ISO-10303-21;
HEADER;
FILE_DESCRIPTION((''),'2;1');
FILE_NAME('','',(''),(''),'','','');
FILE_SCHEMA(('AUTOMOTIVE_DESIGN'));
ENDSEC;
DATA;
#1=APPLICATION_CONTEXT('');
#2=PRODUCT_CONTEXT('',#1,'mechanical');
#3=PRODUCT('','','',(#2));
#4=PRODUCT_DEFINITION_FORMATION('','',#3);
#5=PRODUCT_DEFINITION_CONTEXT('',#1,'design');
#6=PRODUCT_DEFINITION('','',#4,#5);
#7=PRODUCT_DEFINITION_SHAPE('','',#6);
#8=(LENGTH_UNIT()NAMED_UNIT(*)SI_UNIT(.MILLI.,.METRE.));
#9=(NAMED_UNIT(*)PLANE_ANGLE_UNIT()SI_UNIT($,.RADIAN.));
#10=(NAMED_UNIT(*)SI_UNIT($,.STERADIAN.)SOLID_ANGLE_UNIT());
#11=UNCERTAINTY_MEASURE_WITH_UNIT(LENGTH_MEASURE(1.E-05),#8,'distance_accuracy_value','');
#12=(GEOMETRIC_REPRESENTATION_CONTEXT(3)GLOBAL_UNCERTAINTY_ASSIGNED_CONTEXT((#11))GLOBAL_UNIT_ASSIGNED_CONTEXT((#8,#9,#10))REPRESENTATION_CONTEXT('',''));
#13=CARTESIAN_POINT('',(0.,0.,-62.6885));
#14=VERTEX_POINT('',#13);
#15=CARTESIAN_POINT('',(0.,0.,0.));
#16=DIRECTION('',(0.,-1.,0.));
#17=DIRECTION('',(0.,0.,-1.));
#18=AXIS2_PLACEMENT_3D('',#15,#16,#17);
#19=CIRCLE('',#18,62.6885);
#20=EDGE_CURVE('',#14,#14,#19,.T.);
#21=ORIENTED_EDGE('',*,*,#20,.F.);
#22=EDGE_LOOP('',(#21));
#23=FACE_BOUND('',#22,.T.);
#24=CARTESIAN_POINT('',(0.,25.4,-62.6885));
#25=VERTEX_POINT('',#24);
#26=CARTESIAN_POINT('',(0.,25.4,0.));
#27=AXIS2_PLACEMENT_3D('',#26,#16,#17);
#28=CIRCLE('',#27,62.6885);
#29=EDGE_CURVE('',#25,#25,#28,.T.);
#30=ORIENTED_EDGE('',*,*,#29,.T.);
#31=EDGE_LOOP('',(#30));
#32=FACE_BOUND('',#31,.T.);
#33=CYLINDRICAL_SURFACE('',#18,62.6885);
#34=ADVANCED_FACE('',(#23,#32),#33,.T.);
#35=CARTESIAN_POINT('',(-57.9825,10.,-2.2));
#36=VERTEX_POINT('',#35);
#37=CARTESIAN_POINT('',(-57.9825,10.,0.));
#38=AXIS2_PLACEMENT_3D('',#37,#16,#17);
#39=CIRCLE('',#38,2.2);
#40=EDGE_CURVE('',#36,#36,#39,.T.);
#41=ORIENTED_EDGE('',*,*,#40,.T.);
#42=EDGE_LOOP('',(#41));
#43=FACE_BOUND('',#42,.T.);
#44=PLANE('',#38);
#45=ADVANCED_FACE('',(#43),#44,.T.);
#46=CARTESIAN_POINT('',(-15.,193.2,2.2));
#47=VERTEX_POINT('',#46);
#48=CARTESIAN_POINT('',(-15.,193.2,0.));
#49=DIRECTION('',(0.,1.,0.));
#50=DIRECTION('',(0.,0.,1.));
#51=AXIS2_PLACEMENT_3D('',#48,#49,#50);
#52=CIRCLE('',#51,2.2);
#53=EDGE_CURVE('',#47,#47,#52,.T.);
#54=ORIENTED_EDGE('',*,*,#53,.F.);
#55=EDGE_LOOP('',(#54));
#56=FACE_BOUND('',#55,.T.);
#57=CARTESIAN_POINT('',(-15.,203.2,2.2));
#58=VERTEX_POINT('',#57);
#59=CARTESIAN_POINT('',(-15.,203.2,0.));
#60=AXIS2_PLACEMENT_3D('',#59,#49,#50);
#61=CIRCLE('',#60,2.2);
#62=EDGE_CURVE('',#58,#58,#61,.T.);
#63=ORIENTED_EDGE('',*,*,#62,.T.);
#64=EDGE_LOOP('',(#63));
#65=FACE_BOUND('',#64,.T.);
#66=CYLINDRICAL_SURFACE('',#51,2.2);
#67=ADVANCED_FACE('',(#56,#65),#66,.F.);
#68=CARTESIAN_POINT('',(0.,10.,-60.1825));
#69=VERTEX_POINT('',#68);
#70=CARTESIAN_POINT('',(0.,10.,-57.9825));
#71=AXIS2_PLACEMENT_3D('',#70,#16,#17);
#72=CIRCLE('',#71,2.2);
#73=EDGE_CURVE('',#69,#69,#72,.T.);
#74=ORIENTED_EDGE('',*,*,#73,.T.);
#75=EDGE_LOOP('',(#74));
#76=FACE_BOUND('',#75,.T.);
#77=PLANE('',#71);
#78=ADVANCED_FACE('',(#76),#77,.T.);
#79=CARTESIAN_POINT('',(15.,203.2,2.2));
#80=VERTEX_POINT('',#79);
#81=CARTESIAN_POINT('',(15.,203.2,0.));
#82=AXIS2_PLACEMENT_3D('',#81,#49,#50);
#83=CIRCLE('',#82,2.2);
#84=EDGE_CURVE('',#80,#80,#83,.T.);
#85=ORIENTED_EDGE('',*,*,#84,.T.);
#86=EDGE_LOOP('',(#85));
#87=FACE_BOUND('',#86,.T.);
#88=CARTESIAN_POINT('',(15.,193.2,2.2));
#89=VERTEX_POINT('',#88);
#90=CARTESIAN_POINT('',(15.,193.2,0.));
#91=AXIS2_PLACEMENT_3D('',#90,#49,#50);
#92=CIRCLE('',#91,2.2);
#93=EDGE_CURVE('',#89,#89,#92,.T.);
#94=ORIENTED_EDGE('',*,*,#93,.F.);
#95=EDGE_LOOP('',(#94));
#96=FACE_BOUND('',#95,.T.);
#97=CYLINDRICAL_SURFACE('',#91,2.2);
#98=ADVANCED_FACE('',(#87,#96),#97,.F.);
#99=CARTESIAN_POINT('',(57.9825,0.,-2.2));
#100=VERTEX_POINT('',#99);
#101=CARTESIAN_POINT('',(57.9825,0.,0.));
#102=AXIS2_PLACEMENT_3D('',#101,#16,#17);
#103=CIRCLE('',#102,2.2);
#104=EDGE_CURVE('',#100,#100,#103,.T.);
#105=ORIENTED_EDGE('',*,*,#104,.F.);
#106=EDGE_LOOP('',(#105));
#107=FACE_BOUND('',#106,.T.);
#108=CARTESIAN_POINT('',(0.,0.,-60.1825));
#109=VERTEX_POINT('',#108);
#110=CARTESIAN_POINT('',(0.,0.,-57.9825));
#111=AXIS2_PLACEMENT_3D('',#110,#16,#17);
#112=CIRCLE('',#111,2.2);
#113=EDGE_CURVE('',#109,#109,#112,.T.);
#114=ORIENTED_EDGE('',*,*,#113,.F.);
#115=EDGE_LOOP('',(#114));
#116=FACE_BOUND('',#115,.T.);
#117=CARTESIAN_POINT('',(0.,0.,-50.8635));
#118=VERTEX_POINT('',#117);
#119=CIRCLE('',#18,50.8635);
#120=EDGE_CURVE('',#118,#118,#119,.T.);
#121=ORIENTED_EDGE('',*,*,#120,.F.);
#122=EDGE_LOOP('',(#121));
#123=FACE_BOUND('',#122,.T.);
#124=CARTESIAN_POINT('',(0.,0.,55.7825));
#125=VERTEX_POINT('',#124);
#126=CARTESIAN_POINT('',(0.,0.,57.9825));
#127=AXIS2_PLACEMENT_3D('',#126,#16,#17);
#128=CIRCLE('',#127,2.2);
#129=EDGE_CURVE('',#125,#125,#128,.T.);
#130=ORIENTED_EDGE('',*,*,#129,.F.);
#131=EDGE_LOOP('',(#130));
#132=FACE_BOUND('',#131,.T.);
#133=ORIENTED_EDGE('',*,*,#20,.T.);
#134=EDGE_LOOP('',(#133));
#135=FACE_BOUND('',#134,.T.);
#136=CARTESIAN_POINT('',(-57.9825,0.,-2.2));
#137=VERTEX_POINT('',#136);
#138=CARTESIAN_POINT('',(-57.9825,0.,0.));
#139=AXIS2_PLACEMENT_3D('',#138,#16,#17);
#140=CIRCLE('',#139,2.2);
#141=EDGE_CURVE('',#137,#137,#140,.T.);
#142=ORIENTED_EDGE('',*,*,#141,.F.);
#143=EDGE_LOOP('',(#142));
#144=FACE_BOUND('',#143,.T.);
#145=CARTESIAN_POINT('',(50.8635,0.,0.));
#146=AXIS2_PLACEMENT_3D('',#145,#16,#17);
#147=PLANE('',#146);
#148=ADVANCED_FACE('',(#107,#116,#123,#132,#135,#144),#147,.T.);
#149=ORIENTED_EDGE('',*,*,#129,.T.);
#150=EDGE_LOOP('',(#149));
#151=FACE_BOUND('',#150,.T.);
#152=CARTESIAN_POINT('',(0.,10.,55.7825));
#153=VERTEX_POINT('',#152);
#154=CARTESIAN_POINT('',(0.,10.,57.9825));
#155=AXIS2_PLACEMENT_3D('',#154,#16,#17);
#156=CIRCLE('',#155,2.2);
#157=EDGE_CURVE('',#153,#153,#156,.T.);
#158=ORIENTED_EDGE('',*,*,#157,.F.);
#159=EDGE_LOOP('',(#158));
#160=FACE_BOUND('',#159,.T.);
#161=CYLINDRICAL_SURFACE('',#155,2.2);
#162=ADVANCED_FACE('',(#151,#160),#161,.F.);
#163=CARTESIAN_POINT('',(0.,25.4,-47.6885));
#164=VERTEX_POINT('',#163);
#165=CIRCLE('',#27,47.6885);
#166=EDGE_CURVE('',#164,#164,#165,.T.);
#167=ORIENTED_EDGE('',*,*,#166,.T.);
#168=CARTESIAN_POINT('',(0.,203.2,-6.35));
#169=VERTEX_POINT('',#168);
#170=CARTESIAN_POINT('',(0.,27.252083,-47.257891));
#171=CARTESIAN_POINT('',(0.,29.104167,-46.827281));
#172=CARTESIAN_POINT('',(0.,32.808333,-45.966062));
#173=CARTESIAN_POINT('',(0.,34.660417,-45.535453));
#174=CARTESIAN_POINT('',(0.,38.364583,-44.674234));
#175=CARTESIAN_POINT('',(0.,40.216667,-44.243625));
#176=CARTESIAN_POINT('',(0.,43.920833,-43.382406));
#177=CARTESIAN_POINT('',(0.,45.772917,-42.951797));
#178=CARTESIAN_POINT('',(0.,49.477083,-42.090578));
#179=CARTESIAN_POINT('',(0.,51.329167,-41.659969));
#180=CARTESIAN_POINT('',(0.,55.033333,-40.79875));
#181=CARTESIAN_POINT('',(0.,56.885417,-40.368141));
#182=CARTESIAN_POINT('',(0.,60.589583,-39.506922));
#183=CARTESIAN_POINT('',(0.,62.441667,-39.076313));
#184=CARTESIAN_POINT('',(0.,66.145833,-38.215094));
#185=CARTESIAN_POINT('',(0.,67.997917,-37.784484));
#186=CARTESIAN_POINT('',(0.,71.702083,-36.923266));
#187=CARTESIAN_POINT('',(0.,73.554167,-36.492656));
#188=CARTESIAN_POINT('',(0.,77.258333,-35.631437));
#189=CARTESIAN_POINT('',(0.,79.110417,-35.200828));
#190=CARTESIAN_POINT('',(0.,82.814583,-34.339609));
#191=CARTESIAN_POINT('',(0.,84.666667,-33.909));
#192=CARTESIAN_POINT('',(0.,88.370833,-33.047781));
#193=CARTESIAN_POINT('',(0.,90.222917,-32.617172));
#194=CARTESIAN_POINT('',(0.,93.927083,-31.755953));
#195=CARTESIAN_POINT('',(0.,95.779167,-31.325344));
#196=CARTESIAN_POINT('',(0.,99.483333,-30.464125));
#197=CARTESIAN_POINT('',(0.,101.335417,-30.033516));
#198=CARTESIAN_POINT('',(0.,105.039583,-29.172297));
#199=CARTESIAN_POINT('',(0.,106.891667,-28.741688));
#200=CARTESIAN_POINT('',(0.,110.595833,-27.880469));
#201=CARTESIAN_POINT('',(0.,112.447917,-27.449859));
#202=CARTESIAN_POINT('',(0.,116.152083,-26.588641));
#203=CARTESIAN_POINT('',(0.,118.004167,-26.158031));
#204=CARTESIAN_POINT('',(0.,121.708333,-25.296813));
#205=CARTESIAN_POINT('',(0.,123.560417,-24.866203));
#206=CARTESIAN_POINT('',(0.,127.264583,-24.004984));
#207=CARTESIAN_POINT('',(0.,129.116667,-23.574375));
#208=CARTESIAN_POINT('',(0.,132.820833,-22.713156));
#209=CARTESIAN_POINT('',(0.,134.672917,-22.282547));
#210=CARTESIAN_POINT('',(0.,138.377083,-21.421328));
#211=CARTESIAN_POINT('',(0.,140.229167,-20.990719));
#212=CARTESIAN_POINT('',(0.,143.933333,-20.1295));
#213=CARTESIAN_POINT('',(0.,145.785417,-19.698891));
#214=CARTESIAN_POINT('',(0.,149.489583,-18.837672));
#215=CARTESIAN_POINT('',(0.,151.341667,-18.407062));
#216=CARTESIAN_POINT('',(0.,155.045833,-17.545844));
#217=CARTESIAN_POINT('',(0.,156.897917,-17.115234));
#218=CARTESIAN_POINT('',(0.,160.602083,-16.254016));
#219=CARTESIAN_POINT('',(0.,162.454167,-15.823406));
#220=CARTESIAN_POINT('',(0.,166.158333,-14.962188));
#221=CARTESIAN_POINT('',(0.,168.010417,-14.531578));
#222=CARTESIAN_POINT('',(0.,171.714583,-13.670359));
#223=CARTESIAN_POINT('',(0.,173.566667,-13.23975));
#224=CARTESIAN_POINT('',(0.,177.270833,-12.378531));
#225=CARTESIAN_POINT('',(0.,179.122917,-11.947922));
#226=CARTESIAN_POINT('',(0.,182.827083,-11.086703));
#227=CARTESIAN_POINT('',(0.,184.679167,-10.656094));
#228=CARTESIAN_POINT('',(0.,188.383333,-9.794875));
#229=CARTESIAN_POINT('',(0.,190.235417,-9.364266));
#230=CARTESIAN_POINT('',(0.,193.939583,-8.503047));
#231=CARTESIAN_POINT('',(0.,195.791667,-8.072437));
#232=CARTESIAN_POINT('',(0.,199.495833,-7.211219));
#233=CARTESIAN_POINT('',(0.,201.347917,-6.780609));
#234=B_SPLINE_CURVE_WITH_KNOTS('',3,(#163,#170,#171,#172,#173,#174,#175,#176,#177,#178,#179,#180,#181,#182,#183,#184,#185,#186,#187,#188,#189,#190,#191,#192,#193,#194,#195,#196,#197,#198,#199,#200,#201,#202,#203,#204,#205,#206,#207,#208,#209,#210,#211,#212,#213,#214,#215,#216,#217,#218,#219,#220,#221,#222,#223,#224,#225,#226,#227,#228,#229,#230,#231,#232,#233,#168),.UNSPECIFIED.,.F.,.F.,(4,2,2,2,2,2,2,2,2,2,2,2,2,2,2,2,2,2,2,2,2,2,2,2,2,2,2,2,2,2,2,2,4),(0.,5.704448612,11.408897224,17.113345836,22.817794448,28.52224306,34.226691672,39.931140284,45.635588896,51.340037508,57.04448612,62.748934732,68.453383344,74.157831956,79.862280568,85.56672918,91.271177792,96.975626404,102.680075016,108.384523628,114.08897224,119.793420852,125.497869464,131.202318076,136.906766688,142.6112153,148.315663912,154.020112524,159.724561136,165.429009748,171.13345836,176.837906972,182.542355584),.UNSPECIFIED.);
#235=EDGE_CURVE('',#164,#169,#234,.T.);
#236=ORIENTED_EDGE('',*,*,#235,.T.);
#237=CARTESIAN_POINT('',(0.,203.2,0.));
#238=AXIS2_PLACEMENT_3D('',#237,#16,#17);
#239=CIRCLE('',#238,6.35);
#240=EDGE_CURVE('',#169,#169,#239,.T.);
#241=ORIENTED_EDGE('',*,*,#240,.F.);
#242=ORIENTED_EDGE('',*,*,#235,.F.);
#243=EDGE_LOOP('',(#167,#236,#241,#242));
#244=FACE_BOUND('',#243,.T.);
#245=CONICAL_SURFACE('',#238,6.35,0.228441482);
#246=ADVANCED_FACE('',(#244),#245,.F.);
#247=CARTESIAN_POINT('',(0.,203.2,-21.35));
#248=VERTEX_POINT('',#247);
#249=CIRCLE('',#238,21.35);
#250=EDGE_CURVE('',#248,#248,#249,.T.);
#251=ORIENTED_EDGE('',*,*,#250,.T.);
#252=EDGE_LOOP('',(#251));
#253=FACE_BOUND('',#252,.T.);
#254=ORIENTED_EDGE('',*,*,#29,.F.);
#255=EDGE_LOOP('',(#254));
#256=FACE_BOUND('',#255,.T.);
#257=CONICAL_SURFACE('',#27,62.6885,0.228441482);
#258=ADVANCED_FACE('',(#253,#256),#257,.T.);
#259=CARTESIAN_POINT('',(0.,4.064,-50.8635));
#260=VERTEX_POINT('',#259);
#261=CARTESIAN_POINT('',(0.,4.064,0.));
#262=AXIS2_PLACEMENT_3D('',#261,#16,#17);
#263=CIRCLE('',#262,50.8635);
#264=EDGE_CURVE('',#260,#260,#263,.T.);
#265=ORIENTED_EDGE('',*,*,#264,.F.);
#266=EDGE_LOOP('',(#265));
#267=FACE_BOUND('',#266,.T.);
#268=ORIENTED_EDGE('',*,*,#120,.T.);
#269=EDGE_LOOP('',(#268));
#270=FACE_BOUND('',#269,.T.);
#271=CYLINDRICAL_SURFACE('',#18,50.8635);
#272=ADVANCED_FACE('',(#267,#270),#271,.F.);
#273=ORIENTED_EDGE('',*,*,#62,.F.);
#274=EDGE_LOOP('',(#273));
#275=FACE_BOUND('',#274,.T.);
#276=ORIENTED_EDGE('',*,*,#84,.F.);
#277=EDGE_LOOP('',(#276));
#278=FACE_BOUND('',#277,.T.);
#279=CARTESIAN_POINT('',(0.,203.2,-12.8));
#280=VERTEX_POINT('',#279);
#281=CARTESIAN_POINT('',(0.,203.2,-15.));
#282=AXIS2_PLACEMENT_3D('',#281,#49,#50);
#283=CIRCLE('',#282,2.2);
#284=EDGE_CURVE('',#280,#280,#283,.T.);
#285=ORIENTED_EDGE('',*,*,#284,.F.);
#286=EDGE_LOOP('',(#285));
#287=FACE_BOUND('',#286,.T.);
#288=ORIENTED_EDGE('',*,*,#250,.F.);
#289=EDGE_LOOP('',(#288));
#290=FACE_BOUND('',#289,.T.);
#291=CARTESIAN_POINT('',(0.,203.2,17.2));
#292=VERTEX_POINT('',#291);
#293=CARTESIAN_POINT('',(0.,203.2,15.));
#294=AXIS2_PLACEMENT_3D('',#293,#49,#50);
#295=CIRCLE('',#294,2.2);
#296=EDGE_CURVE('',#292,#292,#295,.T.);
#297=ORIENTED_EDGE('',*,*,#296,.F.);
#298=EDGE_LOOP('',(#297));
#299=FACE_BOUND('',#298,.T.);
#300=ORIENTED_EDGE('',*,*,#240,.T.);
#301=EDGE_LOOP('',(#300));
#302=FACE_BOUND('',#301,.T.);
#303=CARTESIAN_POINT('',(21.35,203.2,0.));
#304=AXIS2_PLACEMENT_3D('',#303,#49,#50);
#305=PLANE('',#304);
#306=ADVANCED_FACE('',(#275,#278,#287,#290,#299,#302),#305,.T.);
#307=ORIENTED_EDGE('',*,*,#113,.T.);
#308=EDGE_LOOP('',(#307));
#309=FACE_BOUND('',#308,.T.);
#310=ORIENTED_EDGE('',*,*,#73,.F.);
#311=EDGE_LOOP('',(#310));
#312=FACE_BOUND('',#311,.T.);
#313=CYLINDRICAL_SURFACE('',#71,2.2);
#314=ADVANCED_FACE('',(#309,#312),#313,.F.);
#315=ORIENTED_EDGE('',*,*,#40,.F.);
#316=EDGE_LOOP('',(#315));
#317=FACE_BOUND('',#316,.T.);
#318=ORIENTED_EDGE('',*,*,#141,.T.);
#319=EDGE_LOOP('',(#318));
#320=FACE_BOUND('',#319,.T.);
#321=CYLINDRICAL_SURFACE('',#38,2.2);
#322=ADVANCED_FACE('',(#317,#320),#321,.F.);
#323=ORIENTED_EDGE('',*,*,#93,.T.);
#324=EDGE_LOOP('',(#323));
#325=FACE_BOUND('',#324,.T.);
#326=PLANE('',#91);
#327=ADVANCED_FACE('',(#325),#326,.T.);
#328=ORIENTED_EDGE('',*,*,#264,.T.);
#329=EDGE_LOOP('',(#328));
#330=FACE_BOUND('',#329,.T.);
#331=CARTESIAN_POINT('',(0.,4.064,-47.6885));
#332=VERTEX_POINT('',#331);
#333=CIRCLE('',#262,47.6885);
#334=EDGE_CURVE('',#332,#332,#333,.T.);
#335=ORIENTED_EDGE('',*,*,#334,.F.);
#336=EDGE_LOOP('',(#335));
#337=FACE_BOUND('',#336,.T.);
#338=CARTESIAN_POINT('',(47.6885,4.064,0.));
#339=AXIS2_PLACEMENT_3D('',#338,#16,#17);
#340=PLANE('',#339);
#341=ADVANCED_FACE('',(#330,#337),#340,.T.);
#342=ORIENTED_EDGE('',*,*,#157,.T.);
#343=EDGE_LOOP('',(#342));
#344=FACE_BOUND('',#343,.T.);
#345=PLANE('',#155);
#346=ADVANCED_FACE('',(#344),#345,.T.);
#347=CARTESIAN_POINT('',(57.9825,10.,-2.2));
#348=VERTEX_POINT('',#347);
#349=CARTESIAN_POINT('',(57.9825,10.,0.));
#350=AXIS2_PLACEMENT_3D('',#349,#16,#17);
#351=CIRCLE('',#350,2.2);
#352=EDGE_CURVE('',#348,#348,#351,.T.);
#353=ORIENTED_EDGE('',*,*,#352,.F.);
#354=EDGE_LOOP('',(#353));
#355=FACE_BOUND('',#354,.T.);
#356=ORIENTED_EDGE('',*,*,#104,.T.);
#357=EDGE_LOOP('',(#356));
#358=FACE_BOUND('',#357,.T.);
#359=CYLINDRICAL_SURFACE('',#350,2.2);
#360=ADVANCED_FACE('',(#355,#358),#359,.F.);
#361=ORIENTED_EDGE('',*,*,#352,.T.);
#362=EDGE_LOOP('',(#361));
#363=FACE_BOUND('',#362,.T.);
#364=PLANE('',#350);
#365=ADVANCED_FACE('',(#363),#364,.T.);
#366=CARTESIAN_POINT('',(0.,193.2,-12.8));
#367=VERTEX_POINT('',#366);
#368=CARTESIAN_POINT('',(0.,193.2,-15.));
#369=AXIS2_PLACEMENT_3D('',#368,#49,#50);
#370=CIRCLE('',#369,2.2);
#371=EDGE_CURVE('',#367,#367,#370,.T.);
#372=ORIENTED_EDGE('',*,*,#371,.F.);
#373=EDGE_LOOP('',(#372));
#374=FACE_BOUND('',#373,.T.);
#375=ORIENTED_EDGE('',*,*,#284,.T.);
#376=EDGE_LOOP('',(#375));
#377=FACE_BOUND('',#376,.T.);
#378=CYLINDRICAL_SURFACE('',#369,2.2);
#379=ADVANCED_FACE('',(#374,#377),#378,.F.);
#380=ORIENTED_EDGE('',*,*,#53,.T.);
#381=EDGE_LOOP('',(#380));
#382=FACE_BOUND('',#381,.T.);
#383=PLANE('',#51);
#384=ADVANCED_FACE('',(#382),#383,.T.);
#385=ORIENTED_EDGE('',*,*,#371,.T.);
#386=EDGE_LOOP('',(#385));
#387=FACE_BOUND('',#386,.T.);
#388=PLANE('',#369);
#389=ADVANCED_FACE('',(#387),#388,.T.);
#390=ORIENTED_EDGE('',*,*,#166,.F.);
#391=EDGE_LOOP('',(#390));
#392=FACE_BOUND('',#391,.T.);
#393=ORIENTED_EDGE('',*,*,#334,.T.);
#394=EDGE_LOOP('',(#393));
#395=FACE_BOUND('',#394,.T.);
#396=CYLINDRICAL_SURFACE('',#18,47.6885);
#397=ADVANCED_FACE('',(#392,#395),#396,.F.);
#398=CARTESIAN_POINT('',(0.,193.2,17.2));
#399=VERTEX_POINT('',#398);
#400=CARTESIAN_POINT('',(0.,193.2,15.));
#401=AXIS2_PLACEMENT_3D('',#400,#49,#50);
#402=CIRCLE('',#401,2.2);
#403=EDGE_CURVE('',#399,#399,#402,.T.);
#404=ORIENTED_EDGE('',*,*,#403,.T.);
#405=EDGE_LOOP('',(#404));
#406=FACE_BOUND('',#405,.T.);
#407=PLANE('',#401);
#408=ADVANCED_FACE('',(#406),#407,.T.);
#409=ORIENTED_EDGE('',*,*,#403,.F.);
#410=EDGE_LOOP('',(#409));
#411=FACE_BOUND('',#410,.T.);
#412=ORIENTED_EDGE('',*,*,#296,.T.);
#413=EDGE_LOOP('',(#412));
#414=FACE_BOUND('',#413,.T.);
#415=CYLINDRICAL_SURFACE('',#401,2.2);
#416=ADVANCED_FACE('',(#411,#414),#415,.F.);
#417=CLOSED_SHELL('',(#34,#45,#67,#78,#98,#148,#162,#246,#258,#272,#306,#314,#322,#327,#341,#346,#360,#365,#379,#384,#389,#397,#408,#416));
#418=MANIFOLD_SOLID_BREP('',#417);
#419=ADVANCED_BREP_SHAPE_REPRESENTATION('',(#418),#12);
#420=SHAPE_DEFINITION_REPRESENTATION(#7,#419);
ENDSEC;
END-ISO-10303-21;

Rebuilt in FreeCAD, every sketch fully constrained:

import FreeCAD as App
import Part
import Sketcher
Q = App.Units.Quantity

doc = App.newDocument("Part")
body = doc.addObject("PartDesign::Body", "Body")

# Sketch on XY plane
sketch1 = body.newObject("Sketcher::SketchObject", "Sketch")
sketch1.AttachmentSupport = (doc.getObject("XY_Plane"), [""])
sketch1.MapMode = "FlatFace"
sketch1.addGeometry(Part.LineSegment(App.Vector(50.9, 0, 0), App.Vector(62.7, 0, 0)), False)
sketch1.addGeometry(Part.LineSegment(App.Vector(62.7, 0, 0), App.Vector(62.7, 25.4, 0)), False)
sketch1.addGeometry(Part.LineSegment(App.Vector(62.7, 25.4, 0), App.Vector(21.4, 203.2, 0)), False)
sketch1.addGeometry(Part.LineSegment(App.Vector(21.4, 203.2, 0), App.Vector(6.3, 203.2, 0)), False)
sketch1.addGeometry(Part.LineSegment(App.Vector(6.3, 203.2, 0), App.Vector(47.7, 25.4, 0)), False)
sketch1.addGeometry(Part.LineSegment(App.Vector(47.7, 25.4, 0), App.Vector(47.7, 4.1, 0)), False)
sketch1.addGeometry(Part.LineSegment(App.Vector(47.7, 4.1, 0), App.Vector(50.9, 4.1, 0)), False)
sketch1.addGeometry(Part.LineSegment(App.Vector(50.9, 4.1, 0), App.Vector(50.9, 0, 0)), False)
sketch1.addConstraint(Sketcher.Constraint("Coincident", 0, 2, 1, 1))
sketch1.addConstraint(Sketcher.Constraint("Coincident", 1, 2, 2, 1))
sketch1.addConstraint(Sketcher.Constraint("Coincident", 2, 2, 3, 1))
sketch1.addConstraint(Sketcher.Constraint("Coincident", 3, 2, 4, 1))
sketch1.addConstraint(Sketcher.Constraint("Coincident", 4, 2, 5, 1))
sketch1.addConstraint(Sketcher.Constraint("Coincident", 5, 2, 6, 1))
sketch1.addConstraint(Sketcher.Constraint("Coincident", 6, 2, 7, 1))
sketch1.addConstraint(Sketcher.Constraint("Coincident", 7, 2, 0, 1))
sketch1.addConstraint(Sketcher.Constraint("Horizontal", 0))
sketch1.addConstraint(Sketcher.Constraint("Vertical", 1))
sketch1.addConstraint(Sketcher.Constraint("Horizontal", 3))
sketch1.addConstraint(Sketcher.Constraint("Vertical", 5))
sketch1.addConstraint(Sketcher.Constraint("Horizontal", 6))
sketch1.addConstraint(Sketcher.Constraint("Vertical", 7))
sketch1.addConstraint(Sketcher.Constraint("PointOnObject", 0, 2, -1))
sketch1.addConstraint(Sketcher.Constraint("Parallel", 2, 4))
sketch1.addConstraint(Sketcher.Constraint("Horizontal", 1, 2, 4, 2))
sketch1.addConstraint(Sketcher.Constraint("DistanceY", 1, 1, 1, 2, Q("1 in")))
sketch1.addConstraint(Sketcher.Constraint("DistanceY", -1, 1, 2, 2, Q("8 in")))
sketch1.addConstraint(Sketcher.Constraint("DistanceY", 5, 2, 5, 1, Q("0.84 in")))
sketch1.addConstraint(Sketcher.Constraint("DistanceX", 6, 1, 6, 2, Q("0.125 in")))
sketch1.addConstraint(Sketcher.Constraint("DistanceX", -1, 1, 3, 2, Q("0.25 in")))
sketch1.addConstraint(Sketcher.Constraint("DistanceX", 0, 1, 0, 2, Q("11.825 mm")))
sketch1.addConstraint(Sketcher.Constraint("DistanceX", -1, 1, 4, 2, Q("1.8775 in")))
revolution = body.newObject("PartDesign::Revolution", "Revolution")
revolution.Profile = sketch1
revolution.ReferenceAxis = (sketch1, ["V_Axis"])
revolution.Angle = 360

# Sketch on XZ plane
sketch2 = body.newObject("Sketcher::SketchObject", "Sketch001")
sketch2.AttachmentSupport = (doc.getObject("XZ_Plane"), [""])
sketch2.MapMode = "FlatFace"
sketch2.addGeometry(Part.Circle(App.Vector(-58, 0, 0), App.Vector(0, 0, 1), 2.2), False)
sketch2.addGeometry(Part.Circle(App.Vector(0, 58, 0), App.Vector(0, 0, 1), 2.2), False)
sketch2.addGeometry(Part.Circle(App.Vector(58, 0, 0), App.Vector(0, 0, 1), 2.2), False)
sketch2.addGeometry(Part.Circle(App.Vector(0, -58, 0), App.Vector(0, 0, 1), 2.2), False)
sketch2.addConstraint(Sketcher.Constraint("Equal", 0, 1))
sketch2.addConstraint(Sketcher.Constraint("Equal", 1, 2))
sketch2.addConstraint(Sketcher.Constraint("Equal", 2, 3))
sketch2.addConstraint(Sketcher.Constraint("Symmetric", 0, 3, 2, 3, -1, 1))
sketch2.addConstraint(Sketcher.Constraint("Symmetric", 1, 3, 3, 3, -1, 1))
sketch2.addConstraint(Sketcher.Constraint("PointOnObject", 0, 3, -1))
sketch2.addConstraint(Sketcher.Constraint("PointOnObject", 1, 3, -2))
sketch2.addConstraint(Sketcher.Constraint("Diameter", 0, Q("4.4 mm")))
sketch2.addConstraint(Sketcher.Constraint("DistanceX", 0, 3, -1, 1, Q("57.9825 mm")))
sketch2.addConstraint(Sketcher.Constraint("DistanceY", -1, 1, 1, 3, Q("57.9825 mm")))
pocket1 = body.newObject("PartDesign::Pocket", "Pocket")
pocket1.Profile = sketch2
pocket1.Length = 10

# Sketch on XZ plane
sketch3 = body.newObject("Sketcher::SketchObject", "Sketch002")
sketch3.AttachmentSupport = (doc.getObject("XZ_Plane"), [""])
sketch3.MapMode = "FlatFace"
sketch3.AttachmentOffset = App.Placement(App.Vector(0, 0, -8 * 25.4), App.Rotation())
sketch3.addGeometry(Part.Circle(App.Vector(-15, 0, 0), App.Vector(0, 0, 1), 2.2), False)
sketch3.addGeometry(Part.Circle(App.Vector(0, -15, 0), App.Vector(0, 0, 1), 2.2), False)
sketch3.addGeometry(Part.Circle(App.Vector(15, 0, 0), App.Vector(0, 0, 1), 2.2), False)
sketch3.addGeometry(Part.Circle(App.Vector(0, 15, 0), App.Vector(0, 0, 1), 2.2), False)
sketch3.addConstraint(Sketcher.Constraint("Equal", 0, 1))
sketch3.addConstraint(Sketcher.Constraint("Equal", 1, 2))
sketch3.addConstraint(Sketcher.Constraint("Equal", 2, 3))
sketch3.addConstraint(Sketcher.Constraint("Symmetric", 0, 3, 2, 3, -1, 1))
sketch3.addConstraint(Sketcher.Constraint("Symmetric", 1, 3, 3, 3, -1, 1))
sketch3.addConstraint(Sketcher.Constraint("PointOnObject", 0, 3, -1))
sketch3.addConstraint(Sketcher.Constraint("PointOnObject", 1, 3, -2))
sketch3.addConstraint(Sketcher.Constraint("Diameter", 0, Q("4.4 mm")))
sketch3.addConstraint(Sketcher.Constraint("DistanceX", 0, 3, -1, 1, Q("15 mm")))
sketch3.addConstraint(Sketcher.Constraint("DistanceY", 1, 3, -1, 1, Q("15 mm")))
pocket2 = body.newObject("PartDesign::Pocket", "Pocket001")
pocket2.Profile = sketch3
pocket2.Length = 10
pocket2.Reversed = True

doc.recompute()
